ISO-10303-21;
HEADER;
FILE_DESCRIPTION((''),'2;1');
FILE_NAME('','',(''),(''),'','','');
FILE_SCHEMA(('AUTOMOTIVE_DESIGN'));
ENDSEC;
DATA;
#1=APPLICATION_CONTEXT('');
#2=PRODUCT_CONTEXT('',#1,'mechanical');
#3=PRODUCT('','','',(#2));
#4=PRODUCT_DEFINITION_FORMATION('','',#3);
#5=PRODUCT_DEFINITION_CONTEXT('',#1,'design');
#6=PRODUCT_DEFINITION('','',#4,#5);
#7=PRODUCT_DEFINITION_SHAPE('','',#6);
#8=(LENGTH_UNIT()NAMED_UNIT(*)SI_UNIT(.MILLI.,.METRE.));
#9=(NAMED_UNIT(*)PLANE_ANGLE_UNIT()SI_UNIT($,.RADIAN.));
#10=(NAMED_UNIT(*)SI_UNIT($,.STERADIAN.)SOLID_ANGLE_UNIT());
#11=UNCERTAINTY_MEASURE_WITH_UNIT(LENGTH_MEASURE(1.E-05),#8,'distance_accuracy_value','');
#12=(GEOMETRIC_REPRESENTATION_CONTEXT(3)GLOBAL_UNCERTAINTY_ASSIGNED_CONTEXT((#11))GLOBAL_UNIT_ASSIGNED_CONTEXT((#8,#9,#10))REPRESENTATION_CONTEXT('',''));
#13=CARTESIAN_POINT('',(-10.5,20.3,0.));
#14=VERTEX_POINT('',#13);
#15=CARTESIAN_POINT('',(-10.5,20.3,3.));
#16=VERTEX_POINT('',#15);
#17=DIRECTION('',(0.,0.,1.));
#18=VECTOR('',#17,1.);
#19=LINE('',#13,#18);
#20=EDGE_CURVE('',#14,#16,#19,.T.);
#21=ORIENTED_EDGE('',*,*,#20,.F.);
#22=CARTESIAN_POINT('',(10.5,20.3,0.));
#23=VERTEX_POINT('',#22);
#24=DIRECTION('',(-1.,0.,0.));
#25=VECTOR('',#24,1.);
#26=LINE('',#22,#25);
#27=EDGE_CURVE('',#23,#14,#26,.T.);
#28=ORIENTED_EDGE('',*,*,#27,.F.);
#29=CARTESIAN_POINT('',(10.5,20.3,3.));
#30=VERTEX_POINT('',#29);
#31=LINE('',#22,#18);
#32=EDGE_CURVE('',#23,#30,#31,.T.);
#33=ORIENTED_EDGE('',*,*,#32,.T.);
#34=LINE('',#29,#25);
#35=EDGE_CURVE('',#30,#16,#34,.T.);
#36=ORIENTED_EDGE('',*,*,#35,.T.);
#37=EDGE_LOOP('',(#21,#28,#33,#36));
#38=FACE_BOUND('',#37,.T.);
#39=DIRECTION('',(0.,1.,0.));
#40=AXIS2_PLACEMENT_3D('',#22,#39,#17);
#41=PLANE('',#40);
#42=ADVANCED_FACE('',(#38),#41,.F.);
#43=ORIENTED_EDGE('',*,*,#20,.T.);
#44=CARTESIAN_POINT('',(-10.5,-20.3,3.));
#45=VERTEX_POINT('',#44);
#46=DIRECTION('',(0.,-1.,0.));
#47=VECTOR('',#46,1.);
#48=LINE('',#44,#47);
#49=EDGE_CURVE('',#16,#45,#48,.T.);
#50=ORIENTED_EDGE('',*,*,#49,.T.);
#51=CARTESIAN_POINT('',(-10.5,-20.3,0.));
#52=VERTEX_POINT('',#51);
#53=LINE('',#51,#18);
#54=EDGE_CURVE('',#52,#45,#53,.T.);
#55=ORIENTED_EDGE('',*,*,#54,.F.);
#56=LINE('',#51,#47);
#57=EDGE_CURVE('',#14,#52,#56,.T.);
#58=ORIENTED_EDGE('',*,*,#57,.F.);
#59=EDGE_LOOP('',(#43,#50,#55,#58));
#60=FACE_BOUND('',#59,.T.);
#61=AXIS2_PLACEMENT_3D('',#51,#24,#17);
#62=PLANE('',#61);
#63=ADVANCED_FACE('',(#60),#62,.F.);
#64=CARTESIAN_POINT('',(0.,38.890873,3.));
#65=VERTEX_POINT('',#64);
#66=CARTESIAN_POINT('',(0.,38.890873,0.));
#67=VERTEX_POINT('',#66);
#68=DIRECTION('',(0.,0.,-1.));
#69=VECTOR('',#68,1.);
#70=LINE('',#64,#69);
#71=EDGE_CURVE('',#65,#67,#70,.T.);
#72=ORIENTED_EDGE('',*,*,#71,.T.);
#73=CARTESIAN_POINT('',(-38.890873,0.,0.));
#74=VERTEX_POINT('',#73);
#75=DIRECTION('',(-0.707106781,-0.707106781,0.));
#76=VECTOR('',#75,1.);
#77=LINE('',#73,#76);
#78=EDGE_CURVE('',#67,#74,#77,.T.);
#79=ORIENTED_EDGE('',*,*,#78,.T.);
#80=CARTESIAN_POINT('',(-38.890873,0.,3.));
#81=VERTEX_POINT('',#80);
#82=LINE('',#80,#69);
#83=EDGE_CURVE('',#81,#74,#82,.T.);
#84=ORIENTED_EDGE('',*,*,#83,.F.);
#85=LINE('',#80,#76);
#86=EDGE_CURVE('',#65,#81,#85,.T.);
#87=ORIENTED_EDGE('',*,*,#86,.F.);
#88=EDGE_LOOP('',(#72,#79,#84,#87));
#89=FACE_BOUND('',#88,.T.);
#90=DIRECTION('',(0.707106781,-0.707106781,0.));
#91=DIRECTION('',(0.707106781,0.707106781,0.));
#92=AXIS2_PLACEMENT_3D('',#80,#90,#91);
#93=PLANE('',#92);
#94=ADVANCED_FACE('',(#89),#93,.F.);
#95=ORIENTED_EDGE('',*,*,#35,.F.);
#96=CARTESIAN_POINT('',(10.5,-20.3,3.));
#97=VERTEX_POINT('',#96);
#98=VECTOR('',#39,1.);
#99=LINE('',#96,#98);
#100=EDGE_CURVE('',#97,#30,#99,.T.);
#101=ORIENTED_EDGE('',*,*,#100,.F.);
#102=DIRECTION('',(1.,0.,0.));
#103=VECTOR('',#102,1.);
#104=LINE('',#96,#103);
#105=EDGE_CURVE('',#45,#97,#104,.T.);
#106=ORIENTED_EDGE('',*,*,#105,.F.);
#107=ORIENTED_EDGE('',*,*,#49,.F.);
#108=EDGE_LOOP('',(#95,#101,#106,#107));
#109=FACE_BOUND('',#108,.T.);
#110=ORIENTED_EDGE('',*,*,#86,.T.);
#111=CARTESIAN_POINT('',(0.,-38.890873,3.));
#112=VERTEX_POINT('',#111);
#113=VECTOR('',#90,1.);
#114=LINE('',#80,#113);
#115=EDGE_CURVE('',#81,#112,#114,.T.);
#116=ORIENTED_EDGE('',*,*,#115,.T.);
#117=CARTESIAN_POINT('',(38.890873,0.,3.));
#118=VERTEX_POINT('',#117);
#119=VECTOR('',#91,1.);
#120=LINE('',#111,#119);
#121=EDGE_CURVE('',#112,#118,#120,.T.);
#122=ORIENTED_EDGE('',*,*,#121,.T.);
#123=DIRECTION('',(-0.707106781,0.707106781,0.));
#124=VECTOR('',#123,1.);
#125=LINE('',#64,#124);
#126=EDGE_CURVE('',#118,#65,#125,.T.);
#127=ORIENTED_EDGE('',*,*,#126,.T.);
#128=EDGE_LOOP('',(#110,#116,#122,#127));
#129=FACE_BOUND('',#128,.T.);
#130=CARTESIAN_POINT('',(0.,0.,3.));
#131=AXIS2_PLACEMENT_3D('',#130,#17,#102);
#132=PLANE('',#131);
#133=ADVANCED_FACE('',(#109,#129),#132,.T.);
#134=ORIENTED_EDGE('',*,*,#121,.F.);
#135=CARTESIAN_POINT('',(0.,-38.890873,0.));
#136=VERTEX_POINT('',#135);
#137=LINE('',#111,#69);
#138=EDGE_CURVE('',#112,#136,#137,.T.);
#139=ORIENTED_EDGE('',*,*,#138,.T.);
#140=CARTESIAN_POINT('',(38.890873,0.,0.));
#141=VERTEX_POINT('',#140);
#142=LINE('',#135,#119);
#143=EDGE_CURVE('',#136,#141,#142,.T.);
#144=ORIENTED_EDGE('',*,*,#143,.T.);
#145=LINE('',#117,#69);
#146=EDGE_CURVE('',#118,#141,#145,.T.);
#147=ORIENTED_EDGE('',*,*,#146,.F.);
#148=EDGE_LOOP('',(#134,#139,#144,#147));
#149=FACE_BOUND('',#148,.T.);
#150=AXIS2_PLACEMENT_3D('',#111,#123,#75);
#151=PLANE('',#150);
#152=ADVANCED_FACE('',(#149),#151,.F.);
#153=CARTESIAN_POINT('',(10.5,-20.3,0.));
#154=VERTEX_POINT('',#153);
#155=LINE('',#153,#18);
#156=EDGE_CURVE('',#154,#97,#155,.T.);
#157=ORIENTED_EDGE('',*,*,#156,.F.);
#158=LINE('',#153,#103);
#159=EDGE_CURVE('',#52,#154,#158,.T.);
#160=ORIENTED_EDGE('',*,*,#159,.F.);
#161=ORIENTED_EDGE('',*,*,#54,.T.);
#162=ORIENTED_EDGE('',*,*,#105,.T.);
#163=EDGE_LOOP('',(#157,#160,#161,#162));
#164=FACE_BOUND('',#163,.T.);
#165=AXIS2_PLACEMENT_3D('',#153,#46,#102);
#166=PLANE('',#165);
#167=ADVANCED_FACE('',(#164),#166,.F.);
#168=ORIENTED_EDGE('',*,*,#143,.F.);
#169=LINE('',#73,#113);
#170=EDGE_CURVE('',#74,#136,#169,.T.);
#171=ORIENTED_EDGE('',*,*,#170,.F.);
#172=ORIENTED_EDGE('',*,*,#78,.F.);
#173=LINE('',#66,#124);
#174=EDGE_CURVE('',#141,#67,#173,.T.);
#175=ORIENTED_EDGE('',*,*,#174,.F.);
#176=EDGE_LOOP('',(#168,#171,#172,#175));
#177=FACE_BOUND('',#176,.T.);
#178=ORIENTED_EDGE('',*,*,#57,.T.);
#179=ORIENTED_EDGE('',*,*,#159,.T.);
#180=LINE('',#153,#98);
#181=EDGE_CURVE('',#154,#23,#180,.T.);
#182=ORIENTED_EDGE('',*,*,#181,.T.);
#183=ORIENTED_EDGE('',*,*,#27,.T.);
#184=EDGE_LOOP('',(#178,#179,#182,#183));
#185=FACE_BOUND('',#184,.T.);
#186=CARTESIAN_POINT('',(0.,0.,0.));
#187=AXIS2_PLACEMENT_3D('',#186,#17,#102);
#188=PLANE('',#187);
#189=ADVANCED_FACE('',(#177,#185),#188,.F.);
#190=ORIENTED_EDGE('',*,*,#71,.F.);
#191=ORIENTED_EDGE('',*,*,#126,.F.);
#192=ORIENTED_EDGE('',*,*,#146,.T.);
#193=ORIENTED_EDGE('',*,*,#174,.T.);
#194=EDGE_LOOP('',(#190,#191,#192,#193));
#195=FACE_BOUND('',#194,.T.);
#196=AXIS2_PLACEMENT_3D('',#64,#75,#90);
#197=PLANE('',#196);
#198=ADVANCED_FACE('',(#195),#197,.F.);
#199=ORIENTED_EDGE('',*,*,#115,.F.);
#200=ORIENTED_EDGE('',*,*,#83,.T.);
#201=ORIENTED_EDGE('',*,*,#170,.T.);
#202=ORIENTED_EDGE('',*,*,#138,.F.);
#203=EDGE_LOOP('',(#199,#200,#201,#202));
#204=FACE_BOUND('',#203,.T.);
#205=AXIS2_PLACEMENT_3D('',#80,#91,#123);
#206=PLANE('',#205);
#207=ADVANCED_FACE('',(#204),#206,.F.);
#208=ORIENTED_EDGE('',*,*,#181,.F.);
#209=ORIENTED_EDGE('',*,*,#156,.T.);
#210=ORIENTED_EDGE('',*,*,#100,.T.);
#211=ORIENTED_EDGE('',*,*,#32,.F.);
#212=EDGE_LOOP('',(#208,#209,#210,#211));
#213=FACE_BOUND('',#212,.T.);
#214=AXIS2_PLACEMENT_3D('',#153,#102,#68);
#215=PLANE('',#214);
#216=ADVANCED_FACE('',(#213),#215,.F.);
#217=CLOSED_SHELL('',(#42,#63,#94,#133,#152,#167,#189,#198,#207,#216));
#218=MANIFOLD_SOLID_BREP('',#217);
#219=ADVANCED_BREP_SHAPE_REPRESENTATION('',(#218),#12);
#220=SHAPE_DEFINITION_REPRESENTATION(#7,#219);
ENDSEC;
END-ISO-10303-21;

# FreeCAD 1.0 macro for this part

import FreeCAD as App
import Part
import Sketcher

doc = App.newDocument("Part")
params = doc.addObject("Spreadsheet::Sheet", "Params")
for row, (alias, value) in enumerate([
    ("sketch1_length", "55 mm"),
    ("pad1_length", "3 mm"),
    ("sketch2_width", "21 mm"),
    ("sketch2_height", "40.6 mm"),
    ("pocket1_length", "3 mm"),
], start=1):
    params.set(f"A{row}", alias)
    params.set(f"B{row}", "=" + value)
    params.setAlias(f"B{row}", alias)

body = doc.addObject("PartDesign::Body", "Body")

# Sketch on XY plane
sketch1 = body.newObject("Sketcher::SketchObject", "Sketch")
sketch1.AttachmentSupport = (doc.getObject("XY_Plane"), [""])
sketch1.MapMode = "FlatFace"
sketch1.addGeometry(Part.LineSegment(App.Vector(0, 39, 0), App.Vector(-39, 0, 0)), False)
sketch1.addGeometry(Part.LineSegment(App.Vector(-39, 0, 0), App.Vector(0, -39, 0)), False)
sketch1.addGeometry(Part.LineSegment(App.Vector(0, -39, 0), App.Vector(39, 0, 0)), False)
sketch1.addGeometry(Part.LineSegment(App.Vector(39, 0, 0), App.Vector(0, 39, 0)), False)
sketch1.addConstraint(Sketcher.Constraint("Coincident", 0, 2, 1, 1))
sketch1.addConstraint(Sketcher.Constraint("Coincident", 1, 2, 2, 1))
sketch1.addConstraint(Sketcher.Constraint("Coincident", 2, 2, 3, 1))
sketch1.addConstraint(Sketcher.Constraint("Coincident", 3, 2, 0, 1))
sketch1.addConstraint(Sketcher.Constraint("Symmetric", 0, 2, 2, 2, -1, 1))
sketch1.addConstraint(Sketcher.Constraint("Symmetric", 1, 2, 3, 2, -1, 1))
sketch1.addConstraint(Sketcher.Constraint("PointOnObject", 0, 2, -1))
sketch1.addConstraint(Sketcher.Constraint("PointOnObject", 1, 2, -2))
sketch1.addConstraint(Sketcher.Constraint("Perpendicular", 0, 1))
sketch1.addConstraint(Sketcher.Constraint("Distance", 0, 55.0))
sketch1.setExpression("Constraints[9]", "Params.sketch1_length")
pad1 = body.newObject("PartDesign::Pad", "Pad")
pad1.Profile = sketch1
pad1.setExpression("Length", "Params.pad1_length")

# Sketch on XY plane
sketch2 = body.newObject("Sketcher::SketchObject", "Sketch001")
sketch2.AttachmentSupport = (doc.getObject("XY_Plane"), [""])
sketch2.MapMode = "FlatFace"
sketch2.AttachmentOffset = App.Placement(App.Vector(0, 0, 3), App.Rotation())
sketch2.addGeometry(Part.LineSegment(App.Vector(-10, 20, 0), App.Vector(-10, -20, 0)), False)
sketch2.addGeometry(Part.LineSegment(App.Vector(-10, -20, 0), App.Vector(10, -20, 0)), False)
sketch2.addGeometry(Part.LineSegment(App.Vector(10, -20, 0), App.Vector(10, 20, 0)), False)
sketch2.addGeometry(Part.LineSegment(App.Vector(10, 20, 0), App.Vector(-10, 20, 0)), False)
sketch2.addConstraint(Sketcher.Constraint("Coincident", 0, 2, 1, 1))
sketch2.addConstraint(Sketcher.Constraint("Coincident", 1, 2, 2, 1))
sketch2.addConstraint(Sketcher.Constraint("Coincident", 2, 2, 3, 1))
sketch2.addConstraint(Sketcher.Constraint("Coincident", 3, 2, 0, 1))
sketch2.addConstraint(Sketcher.Constraint("Vertical", 0))
sketch2.addConstraint(Sketcher.Constraint("Horizontal", 1))
sketch2.addConstraint(Sketcher.Constraint("Vertical", 2))
sketch2.addConstraint(Sketcher.Constraint("Horizontal", 3))
sketch2.addConstraint(Sketcher.Constraint("Symmetric", 0, 2, 2, 2, -1, 1))
sketch2.addConstraint(Sketcher.Constraint("DistanceX", 1, 1, 1, 2, 21.0))
sketch2.addConstraint(Sketcher.Constraint("DistanceY", 0, 2, 0, 1, 40.6))
sketch2.setExpression("Constraints[9]", "Params.sketch2_width")
sketch2.setExpression("Constraints[10]", "Params.sketch2_height")
pocket1 = body.newObject("PartDesign::Pocket", "Pocket")
pocket1.Profile = sketch2
pocket1.setExpression("Length", "Params.pocket1_length")

doc.recompute()
